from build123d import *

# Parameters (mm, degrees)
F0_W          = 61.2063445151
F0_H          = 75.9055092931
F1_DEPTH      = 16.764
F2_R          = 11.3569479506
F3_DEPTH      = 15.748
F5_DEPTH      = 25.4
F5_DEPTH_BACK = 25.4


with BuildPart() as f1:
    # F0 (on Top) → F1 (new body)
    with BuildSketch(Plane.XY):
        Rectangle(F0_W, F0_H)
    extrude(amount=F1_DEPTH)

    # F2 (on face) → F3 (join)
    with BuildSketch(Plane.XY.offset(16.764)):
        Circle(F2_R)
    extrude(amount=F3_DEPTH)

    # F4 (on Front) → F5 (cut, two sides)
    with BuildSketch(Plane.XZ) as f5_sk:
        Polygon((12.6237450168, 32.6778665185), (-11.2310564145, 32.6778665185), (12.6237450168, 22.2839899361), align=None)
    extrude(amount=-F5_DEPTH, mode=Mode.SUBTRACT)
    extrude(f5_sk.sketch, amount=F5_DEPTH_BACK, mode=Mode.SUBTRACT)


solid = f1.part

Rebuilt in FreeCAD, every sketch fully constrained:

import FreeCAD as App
import Part
import Sketcher

V = App.Vector

doc = App.newDocument("Part")
params = doc.addObject("Spreadsheet::Sheet", "Params")
for row, (alias, value) in enumerate([
    ("pad1_length", "0.66 in"),
    ("pad2_length", "0.62 in"),
], start=1):
    params.set(f"A{row}", alias)
    params.set(f"B{row}", "=" + value)
    params.setAlias(f"B{row}", alias)

body = doc.addObject("PartDesign::Body", "Body")

# Sketch on XY plane
sketch1 = body.newObject("Sketcher::SketchObject", "Sketch")
sketch1.AttachmentSupport = (doc.getObject("XY_Plane"), [""])
sketch1.MapMode = "FlatFace"
sketch1.addGeometry([
    Part.LineSegment(V(-30.603172, 37.952755, 0), V(-30.603172, -37.952755, 0)),
    Part.LineSegment(V(-30.603172, -37.952755, 0), V(30.603172, -37.952755, 0)),
    Part.LineSegment(V(30.603172, -37.952755, 0), V(30.603172, 37.952755, 0)),
    Part.LineSegment(V(30.603172, 37.952755, 0), V(-30.603172, 37.952755, 0)),
], False)
sketch1.addConstraint([
    Sketcher.Constraint("Coincident", 0, 2, 1, 1),
    Sketcher.Constraint("Coincident", 1, 2, 2, 1),
    Sketcher.Constraint("Coincident", 2, 2, 3, 1),
    Sketcher.Constraint("Coincident", 3, 2, 0, 1),
    Sketcher.Constraint("Vertical", 0),
    Sketcher.Constraint("Horizontal", 1),
    Sketcher.Constraint("Vertical", 2),
    Sketcher.Constraint("Horizontal", 3),
    Sketcher.Constraint("Symmetric", 0, 2, 2, 2, -1, 1),
    Sketcher.Constraint("DistanceY", 0, 2, 0, 1, 75.905509),
    Sketcher.Constraint("DistanceX", 1, 1, 1, 2, 61.206345),
])
pad1 = body.newObject("PartDesign::Pad", "Pad")
pad1.Profile = sketch1
pad1.setExpression("Length", "Params.pad1_length")

# Sketch on XY plane
sketch2 = body.newObject("Sketcher::SketchObject", "Sketch001")
sketch2.AttachmentSupport = (doc.getObject("XY_Plane"), [""])
sketch2.MapMode = "FlatFace"
sketch2.AttachmentOffset = App.Placement(V(0, 0, 0.66 * 25.4), App.Rotation())
sketch2.addGeometry(Part.Circle(V(0, 0, 0), V(0, 0, 1), 11.356948), False)
sketch2.addConstraint([
    Sketcher.Constraint("Coincident", 0, 3, -1, 1),
    Sketcher.Constraint("Diameter", 0, 22.713896),
])
pad2 = body.newObject("PartDesign::Pad", "Pad001")
pad2.Profile = sketch2
pad2.setExpression("Length", "Params.pad2_length")

# Sketch on XZ plane
sketch3 = body.newObject("Sketcher::SketchObject", "Sketch002")
sketch3.AttachmentSupport = (doc.getObject("XZ_Plane"), [""])
sketch3.MapMode = "FlatFace"
sketch3.addGeometry([
    Part.LineSegment(V(12.623745, 32.677867, 0), V(-11.231056, 32.677867, 0)),
    Part.LineSegment(V(-11.231056, 32.677867, 0), V(12.623745, 22.28399, 0)),
    Part.LineSegment(V(12.623745, 22.28399, 0), V(12.623745, 32.677867, 0)),
], False)
sketch3.addConstraint([
    Sketcher.Constraint("Coincident", 0, 2, 1, 1),
    Sketcher.Constraint("Coincident", 1, 2, 2, 1),
    Sketcher.Constraint("Coincident", 2, 2, 0, 1),
    Sketcher.Constraint("Horizontal", 0),
    Sketcher.Constraint("Vertical", 2),
    Sketcher.Constraint("DistanceX", 0, 2, 0, 1, 23.854801),
    Sketcher.Constraint("DistanceY", 2, 1, 2, 2, 10.393877),
    Sketcher.Constraint("DistanceY", -1, 1, 1, 2, 22.28399),
    Sketcher.Constraint("DistanceX", 0, 2, -1, 1, 11.231056),
])
pocket1 = body.newObject("PartDesign::Pocket", "Pocket")
pocket1.Profile = sketch3
pocket1.Type = "ThroughAll"
pocket1.Midplane = True

doc.recompute()
